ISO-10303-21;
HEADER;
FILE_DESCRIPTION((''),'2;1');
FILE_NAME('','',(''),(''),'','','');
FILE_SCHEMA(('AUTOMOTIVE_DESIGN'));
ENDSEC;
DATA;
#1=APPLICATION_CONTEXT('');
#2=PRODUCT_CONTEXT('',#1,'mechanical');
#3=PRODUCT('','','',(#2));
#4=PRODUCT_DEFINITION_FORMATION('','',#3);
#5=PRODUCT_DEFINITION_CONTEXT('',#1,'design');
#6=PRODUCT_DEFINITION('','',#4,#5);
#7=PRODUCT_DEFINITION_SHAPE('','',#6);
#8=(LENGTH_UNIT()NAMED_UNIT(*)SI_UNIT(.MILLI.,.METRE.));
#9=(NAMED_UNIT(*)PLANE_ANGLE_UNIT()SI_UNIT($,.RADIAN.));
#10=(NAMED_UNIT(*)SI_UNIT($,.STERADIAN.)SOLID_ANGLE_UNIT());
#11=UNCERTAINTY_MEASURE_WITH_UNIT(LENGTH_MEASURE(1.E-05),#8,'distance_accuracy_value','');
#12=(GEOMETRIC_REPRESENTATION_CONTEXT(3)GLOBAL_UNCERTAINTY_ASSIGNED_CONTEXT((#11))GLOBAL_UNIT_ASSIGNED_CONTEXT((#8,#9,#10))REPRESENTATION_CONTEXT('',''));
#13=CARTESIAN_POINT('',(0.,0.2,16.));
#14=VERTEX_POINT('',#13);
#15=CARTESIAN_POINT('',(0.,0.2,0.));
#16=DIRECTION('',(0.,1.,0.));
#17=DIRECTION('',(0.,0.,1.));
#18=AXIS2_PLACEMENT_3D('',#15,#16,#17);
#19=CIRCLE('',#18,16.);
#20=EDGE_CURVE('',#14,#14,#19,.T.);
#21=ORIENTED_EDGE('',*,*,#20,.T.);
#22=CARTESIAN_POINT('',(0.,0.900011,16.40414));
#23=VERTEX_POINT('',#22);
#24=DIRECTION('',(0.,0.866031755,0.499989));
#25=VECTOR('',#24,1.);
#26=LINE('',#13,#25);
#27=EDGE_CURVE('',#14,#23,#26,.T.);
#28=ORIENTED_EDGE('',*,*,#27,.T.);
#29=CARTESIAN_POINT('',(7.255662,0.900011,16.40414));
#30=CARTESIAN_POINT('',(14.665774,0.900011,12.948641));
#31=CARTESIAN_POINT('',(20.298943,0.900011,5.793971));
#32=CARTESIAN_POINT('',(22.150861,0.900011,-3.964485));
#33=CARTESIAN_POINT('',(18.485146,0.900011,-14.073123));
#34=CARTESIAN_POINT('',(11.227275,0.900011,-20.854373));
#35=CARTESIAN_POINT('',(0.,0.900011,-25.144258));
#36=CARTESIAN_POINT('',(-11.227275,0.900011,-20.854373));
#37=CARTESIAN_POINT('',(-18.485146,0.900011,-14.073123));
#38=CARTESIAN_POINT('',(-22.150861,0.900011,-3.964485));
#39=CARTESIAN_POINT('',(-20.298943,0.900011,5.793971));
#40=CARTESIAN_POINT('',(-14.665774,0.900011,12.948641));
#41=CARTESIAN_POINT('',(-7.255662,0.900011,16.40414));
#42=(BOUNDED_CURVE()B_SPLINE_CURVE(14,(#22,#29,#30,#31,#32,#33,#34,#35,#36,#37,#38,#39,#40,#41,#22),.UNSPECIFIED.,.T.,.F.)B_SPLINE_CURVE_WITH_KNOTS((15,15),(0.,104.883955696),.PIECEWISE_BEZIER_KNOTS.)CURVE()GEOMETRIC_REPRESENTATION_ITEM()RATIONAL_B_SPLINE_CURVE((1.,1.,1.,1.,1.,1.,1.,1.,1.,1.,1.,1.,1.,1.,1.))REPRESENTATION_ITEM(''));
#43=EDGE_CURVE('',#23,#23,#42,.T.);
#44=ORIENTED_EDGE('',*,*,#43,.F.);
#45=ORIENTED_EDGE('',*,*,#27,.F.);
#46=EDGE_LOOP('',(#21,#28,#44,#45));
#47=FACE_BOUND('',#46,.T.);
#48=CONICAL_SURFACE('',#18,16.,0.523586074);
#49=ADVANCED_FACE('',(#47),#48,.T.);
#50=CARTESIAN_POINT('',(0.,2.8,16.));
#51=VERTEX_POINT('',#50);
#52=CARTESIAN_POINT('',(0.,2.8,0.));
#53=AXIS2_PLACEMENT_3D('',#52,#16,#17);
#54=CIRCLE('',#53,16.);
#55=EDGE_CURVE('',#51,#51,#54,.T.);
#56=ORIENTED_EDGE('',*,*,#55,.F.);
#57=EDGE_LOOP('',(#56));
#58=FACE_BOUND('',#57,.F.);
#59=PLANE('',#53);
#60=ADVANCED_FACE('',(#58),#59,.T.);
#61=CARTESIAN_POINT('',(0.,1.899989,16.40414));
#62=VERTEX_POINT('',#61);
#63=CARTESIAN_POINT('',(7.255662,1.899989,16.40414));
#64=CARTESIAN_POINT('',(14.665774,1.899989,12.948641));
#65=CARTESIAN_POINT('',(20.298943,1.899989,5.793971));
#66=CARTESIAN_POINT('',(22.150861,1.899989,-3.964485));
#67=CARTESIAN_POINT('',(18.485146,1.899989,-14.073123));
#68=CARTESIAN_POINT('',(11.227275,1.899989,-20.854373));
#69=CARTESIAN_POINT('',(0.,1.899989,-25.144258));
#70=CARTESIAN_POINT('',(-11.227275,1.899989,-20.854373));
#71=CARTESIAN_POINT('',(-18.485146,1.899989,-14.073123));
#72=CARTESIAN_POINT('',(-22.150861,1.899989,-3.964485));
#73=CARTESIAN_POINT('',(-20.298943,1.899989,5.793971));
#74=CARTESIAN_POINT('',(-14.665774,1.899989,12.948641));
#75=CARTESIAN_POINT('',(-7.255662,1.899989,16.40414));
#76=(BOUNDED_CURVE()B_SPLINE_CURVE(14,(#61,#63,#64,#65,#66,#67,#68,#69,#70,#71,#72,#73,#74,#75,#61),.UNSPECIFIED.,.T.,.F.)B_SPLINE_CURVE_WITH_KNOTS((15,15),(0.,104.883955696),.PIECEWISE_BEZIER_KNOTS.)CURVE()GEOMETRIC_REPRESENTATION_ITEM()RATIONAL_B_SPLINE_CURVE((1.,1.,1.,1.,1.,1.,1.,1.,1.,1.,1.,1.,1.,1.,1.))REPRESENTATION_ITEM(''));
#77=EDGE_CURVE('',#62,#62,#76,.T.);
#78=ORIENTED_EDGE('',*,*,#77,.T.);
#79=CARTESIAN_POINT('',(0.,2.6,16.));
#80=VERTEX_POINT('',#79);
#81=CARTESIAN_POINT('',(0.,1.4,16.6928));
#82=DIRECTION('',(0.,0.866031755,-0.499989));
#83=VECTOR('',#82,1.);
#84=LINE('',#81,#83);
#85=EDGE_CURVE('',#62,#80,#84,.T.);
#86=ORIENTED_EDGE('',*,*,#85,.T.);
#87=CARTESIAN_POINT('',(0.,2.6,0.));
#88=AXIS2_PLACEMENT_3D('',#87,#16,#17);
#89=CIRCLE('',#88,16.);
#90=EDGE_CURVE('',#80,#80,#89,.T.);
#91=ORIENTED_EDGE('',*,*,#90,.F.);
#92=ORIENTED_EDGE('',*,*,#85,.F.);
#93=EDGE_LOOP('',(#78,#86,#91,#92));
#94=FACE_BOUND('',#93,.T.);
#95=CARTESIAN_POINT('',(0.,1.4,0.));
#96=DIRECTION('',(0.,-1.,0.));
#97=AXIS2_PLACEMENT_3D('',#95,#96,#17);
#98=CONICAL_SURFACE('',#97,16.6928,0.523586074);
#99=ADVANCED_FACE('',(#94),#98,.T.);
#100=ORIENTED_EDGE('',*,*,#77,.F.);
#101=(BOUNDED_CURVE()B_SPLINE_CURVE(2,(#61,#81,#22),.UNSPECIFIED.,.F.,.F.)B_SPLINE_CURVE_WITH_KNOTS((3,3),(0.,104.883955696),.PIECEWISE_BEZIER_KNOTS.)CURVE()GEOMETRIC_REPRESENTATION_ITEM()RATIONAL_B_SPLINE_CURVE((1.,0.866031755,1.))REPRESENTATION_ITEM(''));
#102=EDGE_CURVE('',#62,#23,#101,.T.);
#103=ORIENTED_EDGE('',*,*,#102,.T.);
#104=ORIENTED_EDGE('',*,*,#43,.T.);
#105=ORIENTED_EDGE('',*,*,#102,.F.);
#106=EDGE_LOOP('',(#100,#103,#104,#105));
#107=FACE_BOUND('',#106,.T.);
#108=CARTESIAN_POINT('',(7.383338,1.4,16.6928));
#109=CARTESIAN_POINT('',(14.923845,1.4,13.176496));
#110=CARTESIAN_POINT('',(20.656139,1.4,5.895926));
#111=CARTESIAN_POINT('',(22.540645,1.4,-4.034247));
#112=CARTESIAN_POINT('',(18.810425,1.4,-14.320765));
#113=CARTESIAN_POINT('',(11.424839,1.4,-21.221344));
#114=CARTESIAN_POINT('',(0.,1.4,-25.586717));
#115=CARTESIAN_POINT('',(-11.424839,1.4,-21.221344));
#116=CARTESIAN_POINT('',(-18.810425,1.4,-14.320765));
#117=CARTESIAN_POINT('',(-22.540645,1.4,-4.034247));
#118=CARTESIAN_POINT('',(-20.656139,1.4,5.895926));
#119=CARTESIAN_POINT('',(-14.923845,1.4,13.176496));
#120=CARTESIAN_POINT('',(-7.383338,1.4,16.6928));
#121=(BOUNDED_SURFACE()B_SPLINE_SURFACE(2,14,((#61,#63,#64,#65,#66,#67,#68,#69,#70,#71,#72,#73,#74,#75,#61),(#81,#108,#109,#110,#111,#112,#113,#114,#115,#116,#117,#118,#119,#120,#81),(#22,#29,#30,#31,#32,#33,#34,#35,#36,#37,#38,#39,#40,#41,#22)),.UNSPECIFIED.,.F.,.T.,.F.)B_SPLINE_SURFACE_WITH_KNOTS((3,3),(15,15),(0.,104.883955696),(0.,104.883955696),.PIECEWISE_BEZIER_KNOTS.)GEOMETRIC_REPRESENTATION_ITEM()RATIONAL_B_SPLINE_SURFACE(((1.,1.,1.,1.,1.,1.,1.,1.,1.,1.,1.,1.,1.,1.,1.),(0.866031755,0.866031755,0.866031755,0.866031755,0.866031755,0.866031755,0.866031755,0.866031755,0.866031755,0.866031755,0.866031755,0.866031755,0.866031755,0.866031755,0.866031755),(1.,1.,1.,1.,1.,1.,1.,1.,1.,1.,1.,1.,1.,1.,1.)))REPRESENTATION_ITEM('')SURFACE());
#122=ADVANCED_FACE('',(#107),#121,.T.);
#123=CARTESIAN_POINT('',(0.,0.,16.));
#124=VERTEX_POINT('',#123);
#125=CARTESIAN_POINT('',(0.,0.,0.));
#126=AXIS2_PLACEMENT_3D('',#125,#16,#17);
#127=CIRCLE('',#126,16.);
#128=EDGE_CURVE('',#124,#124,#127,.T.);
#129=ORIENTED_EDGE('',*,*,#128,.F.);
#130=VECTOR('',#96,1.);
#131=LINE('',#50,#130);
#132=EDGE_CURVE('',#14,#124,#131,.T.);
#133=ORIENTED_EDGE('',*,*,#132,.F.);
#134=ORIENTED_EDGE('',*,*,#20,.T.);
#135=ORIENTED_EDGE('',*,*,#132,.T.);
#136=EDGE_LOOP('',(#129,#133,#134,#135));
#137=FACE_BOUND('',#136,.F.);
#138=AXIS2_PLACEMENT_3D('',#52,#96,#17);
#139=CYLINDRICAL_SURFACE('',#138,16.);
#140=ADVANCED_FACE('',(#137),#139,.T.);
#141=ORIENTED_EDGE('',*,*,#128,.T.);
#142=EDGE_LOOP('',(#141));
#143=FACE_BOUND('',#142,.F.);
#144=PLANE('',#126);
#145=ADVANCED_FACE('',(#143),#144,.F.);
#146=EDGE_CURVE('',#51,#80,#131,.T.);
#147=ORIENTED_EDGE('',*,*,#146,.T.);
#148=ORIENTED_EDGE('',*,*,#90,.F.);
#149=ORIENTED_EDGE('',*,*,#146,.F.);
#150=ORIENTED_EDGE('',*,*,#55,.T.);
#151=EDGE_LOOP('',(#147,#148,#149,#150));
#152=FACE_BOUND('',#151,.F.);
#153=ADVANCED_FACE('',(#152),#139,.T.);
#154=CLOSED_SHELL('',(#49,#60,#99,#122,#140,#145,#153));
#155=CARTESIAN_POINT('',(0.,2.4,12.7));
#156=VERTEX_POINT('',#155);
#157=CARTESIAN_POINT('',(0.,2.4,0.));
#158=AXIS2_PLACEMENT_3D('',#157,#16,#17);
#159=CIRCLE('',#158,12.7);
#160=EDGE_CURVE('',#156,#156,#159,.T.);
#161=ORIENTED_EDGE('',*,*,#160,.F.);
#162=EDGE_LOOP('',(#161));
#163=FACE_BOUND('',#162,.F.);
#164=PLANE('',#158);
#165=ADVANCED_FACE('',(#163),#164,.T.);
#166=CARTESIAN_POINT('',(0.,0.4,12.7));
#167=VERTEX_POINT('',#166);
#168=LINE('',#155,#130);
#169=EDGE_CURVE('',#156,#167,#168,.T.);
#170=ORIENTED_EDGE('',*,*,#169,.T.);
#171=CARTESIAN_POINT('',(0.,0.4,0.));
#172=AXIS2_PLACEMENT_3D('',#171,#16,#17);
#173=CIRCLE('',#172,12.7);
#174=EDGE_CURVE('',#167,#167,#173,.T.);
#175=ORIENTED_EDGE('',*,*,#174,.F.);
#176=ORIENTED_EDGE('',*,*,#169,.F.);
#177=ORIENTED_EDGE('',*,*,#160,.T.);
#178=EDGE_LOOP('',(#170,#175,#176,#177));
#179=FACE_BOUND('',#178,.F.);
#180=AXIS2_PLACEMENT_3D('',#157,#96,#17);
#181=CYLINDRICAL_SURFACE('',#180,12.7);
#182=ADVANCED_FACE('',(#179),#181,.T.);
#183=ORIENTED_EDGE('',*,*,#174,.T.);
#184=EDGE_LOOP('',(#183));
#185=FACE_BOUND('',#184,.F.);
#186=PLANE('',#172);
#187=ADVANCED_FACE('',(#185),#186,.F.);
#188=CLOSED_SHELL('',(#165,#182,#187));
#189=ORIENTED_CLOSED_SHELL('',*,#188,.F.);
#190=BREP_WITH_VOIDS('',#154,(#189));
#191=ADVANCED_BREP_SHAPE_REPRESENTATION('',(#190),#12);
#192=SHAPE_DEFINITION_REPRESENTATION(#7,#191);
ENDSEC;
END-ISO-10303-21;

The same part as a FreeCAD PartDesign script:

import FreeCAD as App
import Part
import Sketcher

V = App.Vector
Q = App.Units.Quantity


def edges_at(feature, points):
    """Names of the edges that pass closest to the given points."""
    edges = feature.Shape.Edges
    near = lambda p: min(range(len(edges)), key=lambda i: edges[i].distToShape(Part.Vertex(*p))[0])
    return sorted({f"Edge{near(p) + 1}" for p in points})

doc = App.newDocument("Part")
body = doc.addObject("PartDesign::Body", "Body")

sketch1 = body.newObject("Sketcher::SketchObject", "Sketch")
sketch1.AttachmentSupport = (doc.getObject("YZ_Plane"), [""])
sketch1.MapMode = "FlatFace"
sketch1.addGeometry([
    Part.LineSegment(V(2.8, 0, 0), V(2.8, 16, 0)),
    Part.LineSegment(V(2.8, 16, 0), V(2.6, 16, 0)),
    Part.LineSegment(V(2.6, 16, 0), V(1.4, 16.69, 0)),
    Part.LineSegment(V(1.4, 16.69, 0), V(0.2, 16, 0)),
    Part.LineSegment(V(0.2, 16, 0), V(0, 16, 0)),
    Part.LineSegment(V(0, 16, 0), V(0, 0, 0)),
    Part.LineSegment(V(0, 0, 0), V(0.4, 0, 0)),
    Part.LineSegment(V(0.4, 0, 0), V(0.4, 12.7, 0)),
    Part.LineSegment(V(0.4, 12.7, 0), V(2.4, 12.7, 0)),
    Part.LineSegment(V(2.4, 12.7, 0), V(2.4, 0, 0)),
    Part.LineSegment(V(2.4, 0, 0), V(2.8, 0, 0)),
], False)
sketch1.addConstraint([
    Sketcher.Constraint("Coincident", 0, 2, 1, 1),
    Sketcher.Constraint("Coincident", 1, 2, 2, 1),
    Sketcher.Constraint("Coincident", 2, 2, 3, 1),
    Sketcher.Constraint("Coincident", 3, 2, 4, 1),
    Sketcher.Constraint("Coincident", 4, 2, 5, 1),
    Sketcher.Constraint("Coincident", 5, 2, 6, 1),
    Sketcher.Constraint("Coincident", 6, 2, 7, 1),
    Sketcher.Constraint("Coincident", 7, 2, 8, 1),
    Sketcher.Constraint("Coincident", 8, 2, 9, 1),
    Sketcher.Constraint("Coincident", 9, 2, 10, 1),
    Sketcher.Constraint("Coincident", 10, 2, 0, 1),
    Sketcher.Constraint("Vertical", 0),
    Sketcher.Constraint("Horizontal", 1),
    Sketcher.Constraint("Horizontal", 4),
    Sketcher.Constraint("Vertical", 5),
    Sketcher.Constraint("Horizontal", 6),
    Sketcher.Constraint("Vertical", 7),
    Sketcher.Constraint("Horizontal", 8),
    Sketcher.Constraint("Vertical", 9),
    Sketcher.Constraint("Horizontal", 10),
    Sketcher.Constraint("Coincident", 5, 2, -1, 1),
    Sketcher.Constraint("PointOnObject", 9, 2, -1),
    Sketcher.Constraint("Horizontal", 1, 2, 3, 2),
    Sketcher.Constraint("Equal", 1, 4),
    Sketcher.Constraint("Equal", 6, 10),
    Sketcher.Constraint("Equal", 2, 3),
    Sketcher.Constraint("DistanceX", 8, 1, 8, 2, Q("2 mm")),
    Sketcher.Constraint("DistanceX", 1, 2, 1, 1, Q("0.2 mm")),
    Sketcher.Constraint("DistanceX", 6, 1, 6, 2, Q("0.4 mm")),
    Sketcher.Constraint("DistanceY", 0, 1, 0, 2, Q("16 mm")),
    Sketcher.Constraint("Angle", 2, Q("150.0007 deg")),
    Sketcher.Constraint("DistanceY", 7, 1, 7, 2, Q("12.7 mm")),
])
revolution = body.newObject("PartDesign::Revolution", "Revolution")
revolution.Profile = sketch1
revolution.ReferenceAxis = (sketch1, ["H_Axis"])
revolution.Angle = 360
doc.recompute()

fillet = body.newObject("PartDesign::Fillet", "Fillet")
fillet.Base = (revolution, edges_at(revolution, [(0, 1.4, -16.693)]))
fillet.Radius = 1

doc.recompute()
